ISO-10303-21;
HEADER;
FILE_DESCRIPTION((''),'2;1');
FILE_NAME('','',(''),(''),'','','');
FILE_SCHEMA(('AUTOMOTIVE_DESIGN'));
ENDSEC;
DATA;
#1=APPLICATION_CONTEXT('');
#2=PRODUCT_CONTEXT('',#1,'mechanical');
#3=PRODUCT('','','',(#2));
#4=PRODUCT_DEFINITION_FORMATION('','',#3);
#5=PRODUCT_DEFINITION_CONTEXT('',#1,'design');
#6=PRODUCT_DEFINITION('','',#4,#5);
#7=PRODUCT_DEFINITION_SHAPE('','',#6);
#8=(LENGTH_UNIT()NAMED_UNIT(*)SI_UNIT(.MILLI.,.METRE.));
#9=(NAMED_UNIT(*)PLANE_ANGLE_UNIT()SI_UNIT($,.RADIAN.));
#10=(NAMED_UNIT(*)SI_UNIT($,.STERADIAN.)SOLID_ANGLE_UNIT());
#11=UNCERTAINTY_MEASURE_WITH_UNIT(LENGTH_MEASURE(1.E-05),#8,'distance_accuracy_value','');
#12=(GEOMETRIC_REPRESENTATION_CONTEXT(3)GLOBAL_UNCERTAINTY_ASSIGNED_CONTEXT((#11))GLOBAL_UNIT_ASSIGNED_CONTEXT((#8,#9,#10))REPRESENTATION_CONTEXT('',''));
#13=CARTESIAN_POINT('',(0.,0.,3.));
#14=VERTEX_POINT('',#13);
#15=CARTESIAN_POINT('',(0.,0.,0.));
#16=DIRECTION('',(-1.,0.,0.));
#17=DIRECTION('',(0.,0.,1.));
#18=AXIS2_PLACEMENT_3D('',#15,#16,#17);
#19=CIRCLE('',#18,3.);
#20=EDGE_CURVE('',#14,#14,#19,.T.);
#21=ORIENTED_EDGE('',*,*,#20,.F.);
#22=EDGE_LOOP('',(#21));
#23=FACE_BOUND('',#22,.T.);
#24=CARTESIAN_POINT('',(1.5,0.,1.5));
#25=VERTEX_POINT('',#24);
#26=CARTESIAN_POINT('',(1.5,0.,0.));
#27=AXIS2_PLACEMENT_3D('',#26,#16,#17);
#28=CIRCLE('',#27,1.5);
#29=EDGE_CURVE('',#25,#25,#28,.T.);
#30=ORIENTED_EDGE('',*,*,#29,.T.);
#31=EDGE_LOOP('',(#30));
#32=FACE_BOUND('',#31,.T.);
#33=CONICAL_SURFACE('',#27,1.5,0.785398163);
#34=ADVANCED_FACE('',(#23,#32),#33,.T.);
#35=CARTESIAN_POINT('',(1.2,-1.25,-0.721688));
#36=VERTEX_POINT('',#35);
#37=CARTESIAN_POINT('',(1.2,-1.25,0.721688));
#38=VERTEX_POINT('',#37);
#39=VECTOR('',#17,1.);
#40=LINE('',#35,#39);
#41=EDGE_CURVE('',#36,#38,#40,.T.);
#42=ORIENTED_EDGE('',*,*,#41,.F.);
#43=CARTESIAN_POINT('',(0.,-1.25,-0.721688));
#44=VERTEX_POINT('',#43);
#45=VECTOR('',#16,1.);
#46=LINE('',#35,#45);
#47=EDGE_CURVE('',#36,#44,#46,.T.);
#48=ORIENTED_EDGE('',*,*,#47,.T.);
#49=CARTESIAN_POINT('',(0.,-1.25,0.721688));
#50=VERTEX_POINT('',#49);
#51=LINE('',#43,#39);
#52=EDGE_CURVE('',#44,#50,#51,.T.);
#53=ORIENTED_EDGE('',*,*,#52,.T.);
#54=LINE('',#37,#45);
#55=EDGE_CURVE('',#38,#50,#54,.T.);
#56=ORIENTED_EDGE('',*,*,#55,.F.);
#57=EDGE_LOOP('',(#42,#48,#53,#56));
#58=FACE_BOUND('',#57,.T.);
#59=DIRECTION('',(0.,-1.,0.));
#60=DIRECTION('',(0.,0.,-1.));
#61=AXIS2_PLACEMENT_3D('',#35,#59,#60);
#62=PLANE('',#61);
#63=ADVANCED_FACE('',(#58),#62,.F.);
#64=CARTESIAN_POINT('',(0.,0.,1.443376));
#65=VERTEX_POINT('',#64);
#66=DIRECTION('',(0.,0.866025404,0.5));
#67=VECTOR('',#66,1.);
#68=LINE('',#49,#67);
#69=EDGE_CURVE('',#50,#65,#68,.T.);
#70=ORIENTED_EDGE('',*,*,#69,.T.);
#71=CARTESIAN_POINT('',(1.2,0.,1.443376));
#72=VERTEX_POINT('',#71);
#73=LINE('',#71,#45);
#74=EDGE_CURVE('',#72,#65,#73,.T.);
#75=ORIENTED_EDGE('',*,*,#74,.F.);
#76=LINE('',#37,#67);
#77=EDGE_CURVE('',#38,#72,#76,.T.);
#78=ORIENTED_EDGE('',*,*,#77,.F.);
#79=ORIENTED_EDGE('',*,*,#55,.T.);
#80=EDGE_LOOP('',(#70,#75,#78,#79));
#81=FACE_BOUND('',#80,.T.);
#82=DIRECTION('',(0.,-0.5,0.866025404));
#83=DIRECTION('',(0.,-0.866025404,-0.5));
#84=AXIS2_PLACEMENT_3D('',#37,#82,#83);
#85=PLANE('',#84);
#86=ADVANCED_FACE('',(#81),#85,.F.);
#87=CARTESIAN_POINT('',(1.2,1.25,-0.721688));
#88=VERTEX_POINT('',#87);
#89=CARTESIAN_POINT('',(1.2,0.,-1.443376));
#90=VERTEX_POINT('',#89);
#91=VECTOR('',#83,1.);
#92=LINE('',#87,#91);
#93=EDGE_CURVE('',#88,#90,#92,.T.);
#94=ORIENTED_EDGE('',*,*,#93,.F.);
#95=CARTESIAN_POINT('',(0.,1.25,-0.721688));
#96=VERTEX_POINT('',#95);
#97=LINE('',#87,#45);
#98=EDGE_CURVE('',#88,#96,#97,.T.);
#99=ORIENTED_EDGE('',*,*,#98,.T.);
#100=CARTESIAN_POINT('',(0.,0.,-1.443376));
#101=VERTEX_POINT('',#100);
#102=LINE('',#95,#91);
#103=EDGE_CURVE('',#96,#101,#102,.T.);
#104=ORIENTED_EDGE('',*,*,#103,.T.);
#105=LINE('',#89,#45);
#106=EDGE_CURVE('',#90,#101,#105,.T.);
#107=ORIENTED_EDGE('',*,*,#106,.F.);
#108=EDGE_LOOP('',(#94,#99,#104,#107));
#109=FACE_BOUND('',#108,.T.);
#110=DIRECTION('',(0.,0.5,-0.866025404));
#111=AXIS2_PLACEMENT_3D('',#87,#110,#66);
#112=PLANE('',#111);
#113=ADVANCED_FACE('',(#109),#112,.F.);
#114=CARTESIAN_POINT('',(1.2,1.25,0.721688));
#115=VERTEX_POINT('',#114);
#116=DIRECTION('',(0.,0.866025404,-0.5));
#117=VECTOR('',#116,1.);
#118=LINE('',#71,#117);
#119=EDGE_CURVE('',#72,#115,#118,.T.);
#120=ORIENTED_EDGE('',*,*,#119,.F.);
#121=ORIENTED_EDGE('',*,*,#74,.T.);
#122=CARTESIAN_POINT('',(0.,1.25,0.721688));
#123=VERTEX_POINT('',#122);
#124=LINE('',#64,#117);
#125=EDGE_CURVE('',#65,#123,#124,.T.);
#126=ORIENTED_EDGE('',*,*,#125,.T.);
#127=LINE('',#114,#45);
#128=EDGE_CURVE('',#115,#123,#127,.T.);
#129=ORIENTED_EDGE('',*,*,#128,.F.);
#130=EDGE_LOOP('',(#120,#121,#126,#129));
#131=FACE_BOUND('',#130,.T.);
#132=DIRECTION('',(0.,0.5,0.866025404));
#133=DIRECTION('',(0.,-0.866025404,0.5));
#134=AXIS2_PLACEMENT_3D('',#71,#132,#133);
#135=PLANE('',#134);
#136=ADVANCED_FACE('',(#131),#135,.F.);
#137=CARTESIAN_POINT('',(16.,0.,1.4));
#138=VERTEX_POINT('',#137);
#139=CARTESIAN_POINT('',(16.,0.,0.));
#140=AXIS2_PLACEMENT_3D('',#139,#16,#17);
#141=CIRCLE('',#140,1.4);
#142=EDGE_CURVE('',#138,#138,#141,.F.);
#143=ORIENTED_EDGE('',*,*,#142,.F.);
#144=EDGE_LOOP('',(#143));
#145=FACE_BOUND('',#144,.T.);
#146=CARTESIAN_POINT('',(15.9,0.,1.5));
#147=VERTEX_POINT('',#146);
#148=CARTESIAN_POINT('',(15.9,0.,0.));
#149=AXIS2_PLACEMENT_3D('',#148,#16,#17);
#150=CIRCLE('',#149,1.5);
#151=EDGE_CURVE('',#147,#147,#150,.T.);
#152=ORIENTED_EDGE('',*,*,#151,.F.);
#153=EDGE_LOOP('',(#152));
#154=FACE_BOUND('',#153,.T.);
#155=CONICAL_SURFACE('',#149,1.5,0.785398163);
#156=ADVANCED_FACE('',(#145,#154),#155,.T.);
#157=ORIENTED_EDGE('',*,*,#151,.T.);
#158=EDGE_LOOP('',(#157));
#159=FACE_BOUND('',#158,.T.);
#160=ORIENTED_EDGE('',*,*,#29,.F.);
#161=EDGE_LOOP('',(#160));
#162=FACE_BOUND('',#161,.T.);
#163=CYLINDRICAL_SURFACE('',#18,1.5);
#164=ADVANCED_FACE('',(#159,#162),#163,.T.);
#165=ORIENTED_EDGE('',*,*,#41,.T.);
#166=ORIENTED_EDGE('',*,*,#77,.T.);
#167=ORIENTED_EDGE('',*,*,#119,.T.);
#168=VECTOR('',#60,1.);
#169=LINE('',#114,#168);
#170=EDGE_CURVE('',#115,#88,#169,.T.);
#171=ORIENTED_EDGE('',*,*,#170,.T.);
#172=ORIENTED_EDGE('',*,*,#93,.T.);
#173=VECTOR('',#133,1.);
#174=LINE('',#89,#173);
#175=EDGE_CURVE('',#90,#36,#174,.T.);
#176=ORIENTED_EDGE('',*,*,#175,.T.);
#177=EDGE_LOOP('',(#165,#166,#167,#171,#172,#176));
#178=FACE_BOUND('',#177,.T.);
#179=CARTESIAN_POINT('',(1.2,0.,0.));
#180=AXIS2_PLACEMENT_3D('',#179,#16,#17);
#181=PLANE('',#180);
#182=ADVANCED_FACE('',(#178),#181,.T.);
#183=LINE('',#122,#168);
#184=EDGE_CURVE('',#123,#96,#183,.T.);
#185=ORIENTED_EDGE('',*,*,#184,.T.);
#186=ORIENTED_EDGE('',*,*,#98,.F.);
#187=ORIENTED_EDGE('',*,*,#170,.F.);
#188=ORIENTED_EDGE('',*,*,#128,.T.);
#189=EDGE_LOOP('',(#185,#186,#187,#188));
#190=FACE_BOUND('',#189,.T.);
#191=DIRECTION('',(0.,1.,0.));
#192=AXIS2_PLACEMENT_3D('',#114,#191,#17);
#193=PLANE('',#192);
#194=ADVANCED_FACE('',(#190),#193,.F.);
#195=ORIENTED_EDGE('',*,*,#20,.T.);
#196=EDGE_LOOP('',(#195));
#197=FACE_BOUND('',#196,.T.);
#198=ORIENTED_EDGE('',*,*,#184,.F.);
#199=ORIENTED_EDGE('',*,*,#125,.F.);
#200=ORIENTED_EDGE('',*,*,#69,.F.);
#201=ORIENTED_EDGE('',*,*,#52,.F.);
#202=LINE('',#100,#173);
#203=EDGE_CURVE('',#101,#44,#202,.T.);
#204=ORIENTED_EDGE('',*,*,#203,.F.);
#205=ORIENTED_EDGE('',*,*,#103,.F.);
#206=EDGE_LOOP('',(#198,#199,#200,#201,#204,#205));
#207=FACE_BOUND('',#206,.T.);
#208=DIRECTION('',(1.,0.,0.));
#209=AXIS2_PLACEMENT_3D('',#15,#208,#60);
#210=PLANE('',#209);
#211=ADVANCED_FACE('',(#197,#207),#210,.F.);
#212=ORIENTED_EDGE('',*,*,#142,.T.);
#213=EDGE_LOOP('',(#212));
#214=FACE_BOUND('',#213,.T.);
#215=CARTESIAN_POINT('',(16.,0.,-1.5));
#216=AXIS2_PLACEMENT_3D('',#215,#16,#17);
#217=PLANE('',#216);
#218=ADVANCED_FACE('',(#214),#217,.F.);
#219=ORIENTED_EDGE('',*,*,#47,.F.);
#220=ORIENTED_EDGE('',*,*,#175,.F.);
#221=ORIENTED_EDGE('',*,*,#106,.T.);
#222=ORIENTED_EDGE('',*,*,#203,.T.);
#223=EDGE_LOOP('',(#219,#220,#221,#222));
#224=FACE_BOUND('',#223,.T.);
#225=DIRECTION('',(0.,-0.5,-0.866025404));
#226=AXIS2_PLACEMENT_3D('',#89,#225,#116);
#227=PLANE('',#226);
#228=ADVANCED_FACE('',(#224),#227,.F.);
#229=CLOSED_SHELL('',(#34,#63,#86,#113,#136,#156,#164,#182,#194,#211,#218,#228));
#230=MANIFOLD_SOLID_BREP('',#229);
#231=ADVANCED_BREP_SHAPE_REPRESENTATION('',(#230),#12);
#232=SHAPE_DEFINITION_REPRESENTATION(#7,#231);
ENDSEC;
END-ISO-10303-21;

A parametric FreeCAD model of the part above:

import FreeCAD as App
import Part
import Sketcher

V = App.Vector
Q = App.Units.Quantity


def edges_at(feature, points):
    """Names of the edges that pass closest to the given points."""
    edges = feature.Shape.Edges
    near = lambda p: min(range(len(edges)), key=lambda i: edges[i].distToShape(Part.Vertex(*p))[0])
    return sorted({f"Edge{near(p) + 1}" for p in points})

doc = App.newDocument("Part")
body = doc.addObject("PartDesign::Body", "Body")

# Sketch on XZ plane
sketch1 = doc.addObject("Sketcher::SketchObject", "Sketch")
body.addObject(sketch1)
sketch1.AttachmentSupport = (doc.XZ_Plane, [""])
sketch1.MapMode = "FlatFace"
sketch1.addGeometry(Part.LineSegment(V(0, -3, 0), V(0, 0, 0)), False)
sketch1.addGeometry(Part.LineSegment(V(0, 0, 0), V(16, 0, 0)), False)
sketch1.addGeometry(Part.LineSegment(V(16, 0, 0), V(16, -1.5, 0)), False)
sketch1.addGeometry(Part.LineSegment(V(16, -1.5, 0), V(1.5, -1.5, 0)), False)
sketch1.addGeometry(Part.LineSegment(V(1.5, -1.5, 0), V(0, -3, 0)), False)
sketch1.addConstraint(Sketcher.Constraint("Coincident", 0, 2, 1, 1))
sketch1.addConstraint(Sketcher.Constraint("Coincident", 1, 2, 2, 1))
sketch1.addConstraint(Sketcher.Constraint("Coincident", 2, 2, 3, 1))
sketch1.addConstraint(Sketcher.Constraint("Coincident", 3, 2, 4, 1))
sketch1.addConstraint(Sketcher.Constraint("Coincident", 4, 2, 0, 1))
sketch1.addConstraint(Sketcher.Constraint("Vertical", 0))
sketch1.addConstraint(Sketcher.Constraint("Horizontal", 1))
sketch1.addConstraint(Sketcher.Constraint("Vertical", 2))
sketch1.addConstraint(Sketcher.Constraint("Horizontal", 3))
sketch1.addConstraint(Sketcher.Constraint("Coincident", 0, 2, -1, 1))
sketch1.addConstraint(Sketcher.Constraint("DistanceX", 1, 1, 1, 2, 16.0))
sketch1.addConstraint(Sketcher.Constraint("DistanceY", 0, 1, 0, 2, 3.0))
sketch1.addConstraint(Sketcher.Constraint("Angle", 4, Q("-135 deg")))
sketch1.addConstraint(Sketcher.Constraint("DistanceX", 3, 2, 3, 1, 14.5))
revolution = doc.addObject("PartDesign::Revolution", "Revolution")
body.addObject(revolution)
revolution.Profile = sketch1
revolution.ReferenceAxis = (sketch1, ["H_Axis"])
revolution.Angle = 360

# Sketch on YZ plane
sketch2 = doc.addObject("Sketcher::SketchObject", "Sketch001")
body.addObject(sketch2)
sketch2.AttachmentSupport = (doc.YZ_Plane, [""])
sketch2.MapMode = "FlatFace"
sketch2.addGeometry(Part.LineSegment(V(0, 1.4, 0), V(1.2, 0.7, 0)), False)
sketch2.addGeometry(Part.LineSegment(V(1.2, 0.7, 0), V(1.2, -0.7, 0)), False)
sketch2.addGeometry(Part.LineSegment(V(1.2, -0.7, 0), V(0, -1.4, 0)), False)
sketch2.addGeometry(Part.LineSegment(V(0, -1.4, 0), V(-1.2, -0.7, 0)), False)
sketch2.addGeometry(Part.LineSegment(V(-1.2, -0.7, 0), V(-1.2, 0.7, 0)), False)
sketch2.addGeometry(Part.LineSegment(V(-1.2, 0.7, 0), V(0, 1.4, 0)), False)
sketch2.addConstraint(Sketcher.Constraint("Coincident", 0, 2, 1, 1))
sketch2.addConstraint(Sketcher.Constraint("Coincident", 1, 2, 2, 1))
sketch2.addConstraint(Sketcher.Constraint("Coincident", 2, 2, 3, 1))
sketch2.addConstraint(Sketcher.Constraint("Coincident", 3, 2, 4, 1))
sketch2.addConstraint(Sketcher.Constraint("Coincident", 4, 2, 5, 1))
sketch2.addConstraint(Sketcher.Constraint("Coincident", 5, 2, 0, 1))
sketch2.addConstraint(Sketcher.Constraint("Vertical", 1))
sketch2.addConstraint(Sketcher.Constraint("Vertical", 4))
sketch2.addConstraint(Sketcher.Constraint("Symmetric", 0, 2, 3, 2, -1, 1))
sketch2.addConstraint(Sketcher.Constraint("Symmetric", 2, 2, 5, 2, -1, 1))
sketch2.addConstraint(Sketcher.Constraint("PointOnObject", 2, 2, -2))
sketch2.addConstraint(Sketcher.Constraint("Parallel", 2, 5))
sketch2.addConstraint(Sketcher.Constraint("Horizontal", 1, 2, 3, 2))
sketch2.addConstraint(Sketcher.Constraint("Angle", 0, Q("-30 deg")))
sketch2.addConstraint(Sketcher.Constraint("DistanceX", 3, 2, 1, 2, 2.5))
sketch2.addConstraint(Sketcher.Constraint("DistanceY", 1, 2, 1, 1, 1.443376))
pocket1 = doc.addObject("PartDesign::Pocket", "Pocket")
body.addObject(pocket1)
pocket1.Profile = sketch2
pocket1.Length = 1.2
pocket1.Reversed = True
doc.recompute()

chamfer = doc.addObject("PartDesign::Chamfer", "Chamfer")
body.addObject(chamfer)
chamfer.Base = (pocket1, edges_at(pocket1, [(16, 0, -1.5)]))
chamfer.Size = 0.1

doc.recompute()
